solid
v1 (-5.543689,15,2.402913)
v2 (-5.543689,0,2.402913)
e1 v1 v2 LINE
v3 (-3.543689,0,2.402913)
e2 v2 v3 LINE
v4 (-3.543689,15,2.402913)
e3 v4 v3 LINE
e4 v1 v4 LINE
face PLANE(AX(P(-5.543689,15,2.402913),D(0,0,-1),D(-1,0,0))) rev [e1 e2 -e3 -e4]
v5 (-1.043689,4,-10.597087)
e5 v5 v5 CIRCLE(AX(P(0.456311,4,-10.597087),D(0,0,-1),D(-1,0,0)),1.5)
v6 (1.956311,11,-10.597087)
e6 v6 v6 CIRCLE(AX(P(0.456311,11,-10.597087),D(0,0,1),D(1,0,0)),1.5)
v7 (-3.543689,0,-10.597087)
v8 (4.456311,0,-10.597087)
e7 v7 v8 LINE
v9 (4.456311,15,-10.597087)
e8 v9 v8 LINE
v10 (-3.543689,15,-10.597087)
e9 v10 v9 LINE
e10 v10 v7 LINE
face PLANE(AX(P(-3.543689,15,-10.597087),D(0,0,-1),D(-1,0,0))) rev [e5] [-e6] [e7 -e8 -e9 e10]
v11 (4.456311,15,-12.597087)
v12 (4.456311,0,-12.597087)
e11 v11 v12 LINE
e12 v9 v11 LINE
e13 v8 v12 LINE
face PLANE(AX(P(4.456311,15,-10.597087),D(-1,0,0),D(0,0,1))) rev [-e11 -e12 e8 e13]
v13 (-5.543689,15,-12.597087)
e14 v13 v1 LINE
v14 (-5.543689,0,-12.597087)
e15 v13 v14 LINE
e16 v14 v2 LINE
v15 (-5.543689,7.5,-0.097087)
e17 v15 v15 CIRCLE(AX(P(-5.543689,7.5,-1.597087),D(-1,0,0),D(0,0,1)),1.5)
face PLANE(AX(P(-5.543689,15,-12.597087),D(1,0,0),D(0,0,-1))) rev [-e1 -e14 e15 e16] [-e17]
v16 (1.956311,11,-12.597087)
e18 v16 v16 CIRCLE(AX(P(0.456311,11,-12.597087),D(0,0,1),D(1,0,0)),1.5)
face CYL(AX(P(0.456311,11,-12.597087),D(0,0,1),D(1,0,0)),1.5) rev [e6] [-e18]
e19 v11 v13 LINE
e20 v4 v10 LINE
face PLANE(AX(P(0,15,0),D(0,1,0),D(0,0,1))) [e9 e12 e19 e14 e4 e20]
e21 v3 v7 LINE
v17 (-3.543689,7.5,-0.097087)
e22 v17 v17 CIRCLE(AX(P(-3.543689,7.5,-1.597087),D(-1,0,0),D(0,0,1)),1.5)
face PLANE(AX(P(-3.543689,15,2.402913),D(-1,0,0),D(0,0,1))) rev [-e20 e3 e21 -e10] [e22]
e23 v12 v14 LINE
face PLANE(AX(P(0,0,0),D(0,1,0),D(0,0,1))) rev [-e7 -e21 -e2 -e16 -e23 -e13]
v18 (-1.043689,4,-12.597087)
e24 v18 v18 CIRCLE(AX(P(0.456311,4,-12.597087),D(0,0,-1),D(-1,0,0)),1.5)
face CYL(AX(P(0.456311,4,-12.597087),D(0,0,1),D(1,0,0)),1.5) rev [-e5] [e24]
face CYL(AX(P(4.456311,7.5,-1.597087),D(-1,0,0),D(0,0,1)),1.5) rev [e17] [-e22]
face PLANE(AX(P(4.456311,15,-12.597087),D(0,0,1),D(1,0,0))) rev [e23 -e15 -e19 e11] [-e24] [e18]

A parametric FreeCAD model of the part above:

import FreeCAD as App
import Part
import Sketcher
from FreeCAD import Vector
Q = App.Units.Quantity


def add_polygon(sketch, points):
    """Adds a closed chain of lines whose ends are joined by coincident constraints."""
    first, n = sketch.GeometryCount, len(points)
    for a, b in zip(points, points[1:] + points[:1]):
        sketch.addGeometry(Part.LineSegment(App.Vector(*a, 0), App.Vector(*b, 0)), False)
    for i in range(n):
        sketch.addConstraint(Sketcher.Constraint("Coincident", first + i, 2, first + (i + 1) % n, 1))

doc = App.newDocument("Part")
body = doc.addObject("PartDesign::Body", "Body")

# Sketch on XZ plane
sketch1 = body.newObject("Sketcher::SketchObject", "Sketch")
sketch1.AttachmentSupport = (doc.getObject("XZ_Plane"), [""])
sketch1.MapMode = "FlatFace"
add_polygon(sketch1, [(4.5, -12.6), (-5.5, -12.6), (-5.5, 2.4), (-3.5, 2.4), (-3.5, -10.6), (4.5, -10.6)])  # lines 0-5
sketch1.addConstraint([
    Sketcher.Constraint("Horizontal", 0),
    Sketcher.Constraint("Vertical", 1),
    Sketcher.Constraint("Horizontal", 2),
    Sketcher.Constraint("Vertical", 3),
    Sketcher.Constraint("Horizontal", 4),
    Sketcher.Constraint("Vertical", 5),
    Sketcher.Constraint("Equal", 2, 5),
    Sketcher.Constraint("DistanceX", 0, 2, 0, 1, Q("10 mm")),
    Sketcher.Constraint("DistanceX", 2, 1, 2, 2, Q("2 mm")),
    Sketcher.Constraint("DistanceY", 1, 1, 1, 2, Q("15 mm")),
    Sketcher.Constraint("DistanceX", 0, 2, -1, 1, Q("5.543689 mm")),
    Sketcher.Constraint("DistanceY", 0, 2, -1, 1, Q("12.597087 mm")),
])
pad1 = body.newObject("PartDesign::Pad", "Pad")
pad1.Profile = sketch1
pad1.Length = 15
pad1.Reversed = True

# Sketch on XY plane
sketch2 = body.newObject("Sketcher::SketchObject", "Sketch001")
sketch2.AttachmentSupport = (doc.getObject("XY_Plane"), [""])
sketch2.MapMode = "FlatFace"
sketch2.AttachmentOffset = App.Placement(Vector(0, 0, -10.597087), App.Rotation())
sketch2.addGeometry([
    Part.Circle(Vector(0.5, 11, 0), Vector(0, 0, 1), 1.5),
    Part.Circle(Vector(0.5, 4, 0), Vector(0, 0, 1), 1.5),
], False)
sketch2.addConstraint([
    Sketcher.Constraint("Equal", 0, 1),
    Sketcher.Constraint("Vertical", 0, 3, 1, 3),
    Sketcher.Constraint("Diameter", 0, Q("3 mm")),
    Sketcher.Constraint("DistanceY", -1, 1, 0, 3, Q("11 mm")),
    Sketcher.Constraint("DistanceY", -1, 1, 1, 3, Q("4 mm")),
    Sketcher.Constraint("DistanceX", -1, 1, 0, 3, Q("0.456311 mm")),
])
pocket1 = body.newObject("PartDesign::Pocket", "Pocket")
pocket1.Profile = sketch2
pocket1.Type = "ThroughAll"

# Sketch on YZ plane
sketch3 = body.newObject("Sketcher::SketchObject", "Sketch002")
sketch3.AttachmentSupport = (doc.getObject("YZ_Plane"), [""])
sketch3.MapMode = "FlatFace"
sketch3.AttachmentOffset = App.Placement(Vector(0, 0, -5.543689), App.Rotation())
sketch3.addGeometry(Part.Circle(Vector(7.5, -1.6, 0), Vector(0, 0, 1), 1.5), False)
sketch3.addConstraint([
    Sketcher.Constraint("Diameter", 0, Q("3 mm")),
    Sketcher.Constraint("DistanceX", -1, 1, 0, 3, Q("7.5 mm")),
    Sketcher.Constraint("DistanceY", 0, 3, -1, 1, Q("1.597087 mm")),
])
pocket2 = body.newObject("PartDesign::Pocket", "Pocket001")
pocket2.Profile = sketch3
pocket2.Length = 10
pocket2.Reversed = True

doc.recompute()
